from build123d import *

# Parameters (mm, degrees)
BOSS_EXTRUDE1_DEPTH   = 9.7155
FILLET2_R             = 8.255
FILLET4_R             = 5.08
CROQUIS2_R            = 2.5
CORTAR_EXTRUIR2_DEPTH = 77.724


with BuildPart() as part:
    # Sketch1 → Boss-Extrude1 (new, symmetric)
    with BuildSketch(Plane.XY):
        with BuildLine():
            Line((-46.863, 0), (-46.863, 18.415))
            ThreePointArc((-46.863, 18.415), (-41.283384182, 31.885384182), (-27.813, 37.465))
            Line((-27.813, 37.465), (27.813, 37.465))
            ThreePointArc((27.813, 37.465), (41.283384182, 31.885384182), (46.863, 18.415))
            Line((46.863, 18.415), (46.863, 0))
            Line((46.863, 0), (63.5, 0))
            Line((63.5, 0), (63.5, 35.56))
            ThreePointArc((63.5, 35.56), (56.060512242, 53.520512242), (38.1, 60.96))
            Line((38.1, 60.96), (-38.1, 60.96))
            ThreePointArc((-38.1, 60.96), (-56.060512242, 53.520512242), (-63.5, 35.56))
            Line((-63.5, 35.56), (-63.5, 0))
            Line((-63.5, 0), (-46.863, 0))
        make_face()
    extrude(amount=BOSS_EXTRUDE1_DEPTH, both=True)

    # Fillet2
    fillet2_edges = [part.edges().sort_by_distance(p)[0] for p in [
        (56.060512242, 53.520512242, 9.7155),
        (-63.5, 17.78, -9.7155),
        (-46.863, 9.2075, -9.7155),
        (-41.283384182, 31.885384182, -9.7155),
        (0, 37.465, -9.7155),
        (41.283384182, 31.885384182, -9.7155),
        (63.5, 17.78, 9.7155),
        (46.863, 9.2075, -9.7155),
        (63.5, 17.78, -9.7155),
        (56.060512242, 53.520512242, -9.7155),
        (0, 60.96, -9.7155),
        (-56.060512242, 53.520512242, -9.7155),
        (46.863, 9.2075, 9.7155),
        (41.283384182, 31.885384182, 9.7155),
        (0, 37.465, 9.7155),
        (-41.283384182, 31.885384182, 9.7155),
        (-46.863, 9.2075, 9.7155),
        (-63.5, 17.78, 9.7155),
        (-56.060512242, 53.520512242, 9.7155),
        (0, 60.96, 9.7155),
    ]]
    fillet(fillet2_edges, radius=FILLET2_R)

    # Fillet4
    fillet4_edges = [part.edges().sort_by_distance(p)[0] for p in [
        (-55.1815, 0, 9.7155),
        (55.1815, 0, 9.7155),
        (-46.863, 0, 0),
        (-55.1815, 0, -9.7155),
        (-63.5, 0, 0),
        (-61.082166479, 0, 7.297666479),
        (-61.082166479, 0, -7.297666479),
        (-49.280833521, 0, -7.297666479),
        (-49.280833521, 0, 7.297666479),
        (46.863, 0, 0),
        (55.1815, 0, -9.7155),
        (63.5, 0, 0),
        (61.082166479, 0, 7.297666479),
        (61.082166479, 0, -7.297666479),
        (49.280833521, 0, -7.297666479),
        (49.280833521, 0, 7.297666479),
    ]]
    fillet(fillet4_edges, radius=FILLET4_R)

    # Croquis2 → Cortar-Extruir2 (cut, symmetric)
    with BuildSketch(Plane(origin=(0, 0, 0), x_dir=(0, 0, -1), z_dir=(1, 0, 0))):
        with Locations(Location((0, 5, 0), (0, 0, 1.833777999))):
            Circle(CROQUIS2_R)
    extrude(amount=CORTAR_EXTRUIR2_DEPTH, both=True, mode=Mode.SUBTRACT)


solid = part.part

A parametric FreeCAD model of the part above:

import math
import FreeCAD as App
import Part
import Sketcher
from FreeCAD import Vector
Q = App.Units.Quantity


def edges_at(feature, points):
    """Names of the edges that pass closest to the given points."""
    edges = feature.Shape.Edges
    near = lambda p: min(range(len(edges)), key=lambda i: edges[i].distToShape(Part.Vertex(*p))[0])
    return sorted({f"Edge{near(p) + 1}" for p in points})

doc = App.newDocument("Part")
body = doc.addObject("PartDesign::Body", "Body")

sketch1 = doc.addObject("Sketcher::SketchObject", "Sketch")
body.addObject(sketch1)
sketch1.AttachmentSupport = (doc.XY_Plane, [""])
sketch1.MapMode = "FlatFace"
sketch1.addGeometry([
    Part.LineSegment(Vector(-47, 0, 0), Vector(-47, 18, 0)),
    Part.ArcOfCircle(Part.Circle(Vector(-28, 18, 0), Vector(0, 0, 1), 19), math.radians(90), math.radians(180)),
    Part.LineSegment(Vector(-28, 37, 0), Vector(28, 37, 0)),
    Part.ArcOfCircle(Part.Circle(Vector(28, 18, 0), Vector(0, 0, 1), 19), math.radians(0), math.radians(90)),
    Part.LineSegment(Vector(47, 18, 0), Vector(47, 0, 0)),
    Part.LineSegment(Vector(47, 0, 0), Vector(64, 0, 0)),
    Part.LineSegment(Vector(64, 0, 0), Vector(64, 36, 0)),
    Part.ArcOfCircle(Part.Circle(Vector(38, 36, 0), Vector(0, 0, 1), 25), math.radians(0), math.radians(90)),
    Part.LineSegment(Vector(38, 61, 0), Vector(-38, 61, 0)),
    Part.ArcOfCircle(Part.Circle(Vector(-38, 36, 0), Vector(0, 0, 1), 25), math.radians(90), math.radians(180)),
    Part.LineSegment(Vector(-64, 36, 0), Vector(-64, 0, 0)),
    Part.LineSegment(Vector(-64, 0, 0), Vector(-47, 0, 0)),
], False)
sketch1.addConstraint([
    Sketcher.Constraint("Tangent", 0, 2, 1, 2),
    Sketcher.Constraint("Tangent", 1, 1, 2, 1),
    Sketcher.Constraint("Tangent", 2, 2, 3, 2),
    Sketcher.Constraint("Tangent", 3, 1, 4, 1),
    Sketcher.Constraint("Coincident", 4, 2, 5, 1),
    Sketcher.Constraint("Coincident", 5, 2, 6, 1),
    Sketcher.Constraint("Tangent", 6, 2, 7, 1),
    Sketcher.Constraint("Tangent", 7, 2, 8, 1),
    Sketcher.Constraint("Tangent", 8, 2, 9, 1),
    Sketcher.Constraint("Tangent", 9, 2, 10, 1),
    Sketcher.Constraint("Coincident", 10, 2, 11, 1),
    Sketcher.Constraint("Coincident", 11, 2, 0, 1),
    Sketcher.Constraint("Vertical", 0),
    Sketcher.Constraint("Horizontal", 2),
    Sketcher.Constraint("Vertical", 4),
    Sketcher.Constraint("Horizontal", 5),
    Sketcher.Constraint("Vertical", 6),
    Sketcher.Constraint("Horizontal", 8),
    Sketcher.Constraint("Vertical", 10),
    Sketcher.Constraint("Horizontal", 11),
    Sketcher.Constraint("Equal", 1, 3),
    Sketcher.Constraint("Equal", 7, 9),
    Sketcher.Constraint("Symmetric", 5, 2, 10, 2, -1, 1),
    Sketcher.Constraint("Symmetric", 4, 2, 11, 2, -2),
    Sketcher.Constraint("Radius", 7, Q("1 in")),
    Sketcher.Constraint("DistanceX", 8, 2, 8, 1, Q("3 in")),
    Sketcher.Constraint("Radius", 1, Q("0.75 in")),
    Sketcher.Constraint("DistanceY", 6, 1, 6, 2, Q("1.4 in")),
    Sketcher.Constraint("DistanceX", 2, 1, 2, 2, Q("2.19 in")),
    Sketcher.Constraint("DistanceY", 0, 1, 0, 2, Q("0.725 in")),
])
pad1 = doc.addObject("PartDesign::Pad", "Pad")
body.addObject(pad1)
pad1.Profile = sketch1
pad1.Length = Q("0.765 in")
pad1.Midplane = True
doc.recompute()

fillet = doc.addObject("PartDesign::Fillet", "Fillet")
body.addObject(fillet)
fillet.Base = (pad1, edges_at(pad1, [
    (56.061, 53.521, 9.716),
    (-63.5, 17.78, -9.716),
    (-46.863, 9.207, -9.716),
    (-41.283, 31.885, -9.716),
    (0, 37.465, -9.716),
    (41.283, 31.885, -9.716),
    (63.5, 17.78, 9.716),
    (46.863, 9.207, -9.716),
    (63.5, 17.78, -9.716),
    (56.061, 53.521, -9.716),
    (0, 60.96, -9.716),
    (-56.061, 53.521, -9.716),
    (46.863, 9.207, 9.716),
    (41.283, 31.885, 9.716),
    (0, 37.465, 9.716),
    (-41.283, 31.885, 9.716),
    (-46.863, 9.207, 9.716),
    (-63.5, 17.78, 9.716),
    (-56.061, 53.521, 9.716),
    (0, 60.96, 9.716),
]))
fillet.Radius = Q("0.325 in")
doc.recompute()

fillet2 = doc.addObject("PartDesign::Fillet", "Fillet001")
body.addObject(fillet2)
fillet2.Base = (fillet, edges_at(fillet, [
    (-55.181, 0, 9.716),
    (55.181, 0, 9.716),
    (-46.863, 0, 0),
    (-55.181, 0, -9.716),
    (-63.5, 0, 0),
    (-61.082, 0, 7.298),
    (-61.082, 0, -7.298),
    (-49.281, 0, -7.298),
    (-49.281, 0, 7.298),
    (46.863, 0, 0),
    (55.181, 0, -9.716),
    (63.5, 0, 0),
    (61.082, 0, 7.298),
    (61.082, 0, -7.298),
    (49.281, 0, -7.298),
    (49.281, 0, 7.298),
]))
fillet2.Radius = Q("0.2 in")

sketch2 = doc.addObject("Sketcher::SketchObject", "Sketch001")
body.addObject(sketch2)
sketch2.AttachmentSupport = (doc.YZ_Plane, [""])
sketch2.MapMode = "FlatFace"
sketch2.addGeometry(Part.Circle(Vector(5, 0, 0), Vector(0, 0, 1), 2.5), False)
sketch2.addConstraint([
    Sketcher.Constraint("PointOnObject", 0, 3, -1),
    Sketcher.Constraint("Diameter", 0, Q("5 mm")),
    Sketcher.Constraint("DistanceX", -1, 1, 0, 3, Q("5 mm")),
])
pocket1 = doc.addObject("PartDesign::Pocket", "Pocket")
body.addObject(pocket1)
pocket1.Profile = sketch2
pocket1.Length = Q("6.12 in")
pocket1.Midplane = True

doc.recompute()
